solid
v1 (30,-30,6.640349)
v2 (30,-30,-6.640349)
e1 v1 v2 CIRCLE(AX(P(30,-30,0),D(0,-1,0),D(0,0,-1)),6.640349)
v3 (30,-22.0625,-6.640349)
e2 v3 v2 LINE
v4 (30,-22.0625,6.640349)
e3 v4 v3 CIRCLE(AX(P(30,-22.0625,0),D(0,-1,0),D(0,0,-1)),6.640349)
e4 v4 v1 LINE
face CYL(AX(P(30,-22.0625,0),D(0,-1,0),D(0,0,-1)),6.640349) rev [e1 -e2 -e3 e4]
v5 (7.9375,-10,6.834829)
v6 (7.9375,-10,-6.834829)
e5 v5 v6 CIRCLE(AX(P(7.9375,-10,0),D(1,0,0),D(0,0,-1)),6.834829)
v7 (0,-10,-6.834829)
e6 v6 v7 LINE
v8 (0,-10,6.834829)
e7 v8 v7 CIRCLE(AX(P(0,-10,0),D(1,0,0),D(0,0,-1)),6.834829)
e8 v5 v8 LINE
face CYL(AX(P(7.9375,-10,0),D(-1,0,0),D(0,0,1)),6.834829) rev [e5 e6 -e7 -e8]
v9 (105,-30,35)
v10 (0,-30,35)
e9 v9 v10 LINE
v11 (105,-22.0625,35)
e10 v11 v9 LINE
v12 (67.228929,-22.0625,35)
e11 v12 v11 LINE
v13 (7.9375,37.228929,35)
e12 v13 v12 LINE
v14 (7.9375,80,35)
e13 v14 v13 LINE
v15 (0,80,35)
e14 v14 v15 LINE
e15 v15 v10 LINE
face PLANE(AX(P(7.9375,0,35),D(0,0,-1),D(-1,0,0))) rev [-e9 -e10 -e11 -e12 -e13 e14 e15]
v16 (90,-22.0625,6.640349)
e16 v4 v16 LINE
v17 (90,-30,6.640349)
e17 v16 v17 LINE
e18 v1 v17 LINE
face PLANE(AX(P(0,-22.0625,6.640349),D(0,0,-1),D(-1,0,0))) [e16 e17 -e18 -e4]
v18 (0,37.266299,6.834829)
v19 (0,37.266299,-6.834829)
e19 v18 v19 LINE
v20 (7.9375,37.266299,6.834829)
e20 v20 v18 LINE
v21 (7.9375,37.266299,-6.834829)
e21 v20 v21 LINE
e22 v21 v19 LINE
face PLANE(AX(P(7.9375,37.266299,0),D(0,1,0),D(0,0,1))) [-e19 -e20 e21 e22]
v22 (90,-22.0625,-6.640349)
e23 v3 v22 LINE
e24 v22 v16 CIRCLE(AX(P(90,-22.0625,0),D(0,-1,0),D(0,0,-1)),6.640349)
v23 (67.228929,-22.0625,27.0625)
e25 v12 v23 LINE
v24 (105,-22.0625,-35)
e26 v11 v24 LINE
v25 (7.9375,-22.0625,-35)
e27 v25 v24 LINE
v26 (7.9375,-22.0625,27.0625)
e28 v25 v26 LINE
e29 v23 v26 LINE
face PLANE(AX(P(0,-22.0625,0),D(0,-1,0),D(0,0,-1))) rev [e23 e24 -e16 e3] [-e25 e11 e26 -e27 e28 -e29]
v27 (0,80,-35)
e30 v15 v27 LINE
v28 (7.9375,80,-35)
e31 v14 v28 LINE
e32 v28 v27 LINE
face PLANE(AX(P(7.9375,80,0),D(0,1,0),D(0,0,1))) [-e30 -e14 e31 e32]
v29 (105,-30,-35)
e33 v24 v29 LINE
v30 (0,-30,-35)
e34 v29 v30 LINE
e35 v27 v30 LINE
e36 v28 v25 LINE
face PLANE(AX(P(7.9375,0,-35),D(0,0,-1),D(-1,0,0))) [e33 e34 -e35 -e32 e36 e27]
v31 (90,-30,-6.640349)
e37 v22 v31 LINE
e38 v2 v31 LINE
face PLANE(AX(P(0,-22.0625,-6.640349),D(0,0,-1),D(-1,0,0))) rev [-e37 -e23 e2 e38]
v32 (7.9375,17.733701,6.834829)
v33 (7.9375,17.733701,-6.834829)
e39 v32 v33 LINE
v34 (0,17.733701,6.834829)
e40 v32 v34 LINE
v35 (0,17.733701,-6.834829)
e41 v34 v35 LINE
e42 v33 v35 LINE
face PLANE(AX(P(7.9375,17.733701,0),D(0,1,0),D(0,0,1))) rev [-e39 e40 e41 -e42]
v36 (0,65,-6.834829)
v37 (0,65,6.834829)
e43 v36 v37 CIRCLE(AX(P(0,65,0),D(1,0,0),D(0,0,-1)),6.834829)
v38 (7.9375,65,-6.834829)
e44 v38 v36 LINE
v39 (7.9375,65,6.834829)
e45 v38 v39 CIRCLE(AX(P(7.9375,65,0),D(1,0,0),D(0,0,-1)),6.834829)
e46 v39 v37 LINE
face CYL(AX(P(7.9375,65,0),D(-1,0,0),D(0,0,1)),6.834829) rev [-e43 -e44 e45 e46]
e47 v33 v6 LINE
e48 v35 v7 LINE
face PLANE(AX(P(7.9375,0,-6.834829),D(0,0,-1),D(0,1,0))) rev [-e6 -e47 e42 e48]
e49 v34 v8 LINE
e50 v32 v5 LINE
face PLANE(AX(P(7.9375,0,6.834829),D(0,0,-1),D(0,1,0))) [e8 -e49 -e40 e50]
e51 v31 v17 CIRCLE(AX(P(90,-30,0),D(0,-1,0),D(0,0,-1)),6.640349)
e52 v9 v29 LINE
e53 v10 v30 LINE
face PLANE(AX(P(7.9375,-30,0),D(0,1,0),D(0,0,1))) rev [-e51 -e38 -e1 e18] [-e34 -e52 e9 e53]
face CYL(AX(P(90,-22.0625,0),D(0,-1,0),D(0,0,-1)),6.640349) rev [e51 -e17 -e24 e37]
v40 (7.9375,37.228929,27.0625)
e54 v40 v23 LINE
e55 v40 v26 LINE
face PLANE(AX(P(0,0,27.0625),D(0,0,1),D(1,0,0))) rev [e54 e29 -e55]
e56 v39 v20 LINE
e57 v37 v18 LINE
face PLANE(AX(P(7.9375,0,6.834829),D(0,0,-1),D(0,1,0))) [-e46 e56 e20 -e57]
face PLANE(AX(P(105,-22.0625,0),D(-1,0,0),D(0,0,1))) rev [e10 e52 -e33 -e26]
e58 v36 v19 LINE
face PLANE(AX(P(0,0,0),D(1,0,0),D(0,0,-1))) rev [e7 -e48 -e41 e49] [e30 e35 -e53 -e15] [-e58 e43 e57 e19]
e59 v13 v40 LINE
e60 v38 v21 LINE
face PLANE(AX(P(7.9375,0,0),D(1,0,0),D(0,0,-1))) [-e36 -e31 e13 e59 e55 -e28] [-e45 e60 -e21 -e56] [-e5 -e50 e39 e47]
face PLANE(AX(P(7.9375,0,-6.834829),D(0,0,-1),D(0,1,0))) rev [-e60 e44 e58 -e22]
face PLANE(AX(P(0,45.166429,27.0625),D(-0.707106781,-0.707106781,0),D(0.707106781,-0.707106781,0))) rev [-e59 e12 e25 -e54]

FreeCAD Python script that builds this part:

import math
import FreeCAD as App
import Part
import Sketcher
Q = App.Units.Quantity


def add_polygon(sketch, points):
    """Adds a closed chain of lines whose ends are joined by coincident constraints."""
    first, n = sketch.GeometryCount, len(points)
    for a, b in zip(points, points[1:] + points[:1]):
        sketch.addGeometry(Part.LineSegment(App.Vector(*a, 0), App.Vector(*b, 0)), False)
    for i in range(n):
        sketch.addConstraint(Sketcher.Constraint("Coincident", first + i, 2, first + (i + 1) % n, 1))

doc = App.newDocument("Part")
body = doc.addObject("PartDesign::Body", "Body")

# Sketch on YZ plane
sketch1 = body.newObject("Sketcher::SketchObject", "Sketch")
sketch1.AttachmentSupport = (doc.getObject("YZ_Plane"), [""])
sketch1.MapMode = "FlatFace"
add_polygon(sketch1, [(80, 35), (-30, 35), (-30, -35), (80, -35)])  # lines 0-3
sketch1.addGeometry(Part.ArcOfCircle(Part.Circle(App.Vector(65, 0, 0), App.Vector(0, 0, 1), 7), math.radians(-90), math.radians(90)), False)  # 4
sketch1.addGeometry(Part.LineSegment(App.Vector(65, -7, 0), App.Vector(37, -7, 0)), False)  # 5
sketch1.addGeometry(Part.LineSegment(App.Vector(37, -7, 0), App.Vector(37, 7, 0)), False)  # 6
sketch1.addGeometry(Part.LineSegment(App.Vector(37, 7, 0), App.Vector(65, 7, 0)), False)  # 7
sketch1.addGeometry(Part.LineSegment(App.Vector(-10, 7, 0), App.Vector(18, 7, 0)), False)  # 8
sketch1.addGeometry(Part.LineSegment(App.Vector(18, 7, 0), App.Vector(18, -7, 0)), False)  # 9
sketch1.addGeometry(Part.LineSegment(App.Vector(18, -7, 0), App.Vector(-10, -7, 0)), False)  # 10
sketch1.addGeometry(Part.ArcOfCircle(Part.Circle(App.Vector(-10, 0, 0), App.Vector(0, 0, 1), 7), math.radians(90), math.radians(270)), False)  # 11
sketch1.addConstraint(Sketcher.Constraint("Tangent", 4, 1, 5, 1))
sketch1.addConstraint(Sketcher.Constraint("Coincident", 5, 2, 6, 1))
sketch1.addConstraint(Sketcher.Constraint("Coincident", 6, 2, 7, 1))
sketch1.addConstraint(Sketcher.Constraint("Tangent", 7, 2, 4, 2))
sketch1.addConstraint(Sketcher.Constraint("Coincident", 8, 2, 9, 1))
sketch1.addConstraint(Sketcher.Constraint("Coincident", 9, 2, 10, 1))
sketch1.addConstraint(Sketcher.Constraint("Tangent", 10, 2, 11, 2))
sketch1.addConstraint(Sketcher.Constraint("Tangent", 11, 1, 8, 1))
sketch1.addConstraint(Sketcher.Constraint("Horizontal", 0))
sketch1.addConstraint(Sketcher.Constraint("Vertical", 1))
sketch1.addConstraint(Sketcher.Constraint("Horizontal", 2))
sketch1.addConstraint(Sketcher.Constraint("Vertical", 3))
sketch1.addConstraint(Sketcher.Constraint("Horizontal", 5))
sketch1.addConstraint(Sketcher.Constraint("Vertical", 6))
sketch1.addConstraint(Sketcher.Constraint("Horizontal", 7))
sketch1.addConstraint(Sketcher.Constraint("Horizontal", 8))
sketch1.addConstraint(Sketcher.Constraint("Vertical", 9))
sketch1.addConstraint(Sketcher.Constraint("Horizontal", 10))
sketch1.addConstraint(Sketcher.Constraint("Equal", 4, 11))
sketch1.addConstraint(Sketcher.Constraint("PointOnObject", 4, 3, -1))
sketch1.addConstraint(Sketcher.Constraint("PointOnObject", 11, 3, -1))
sketch1.addConstraint(Sketcher.Constraint("Equal", 7, 8))
sketch1.addConstraint(Sketcher.Constraint("DistanceX", 0, 2, 0, 1, Q("110 mm")))
sketch1.addConstraint(Sketcher.Constraint("DistanceY", 1, 2, 1, 1, Q("70 mm")))
sketch1.addConstraint(Sketcher.Constraint("DistanceX", -1, 1, 4, 3, Q("65 mm")))
sketch1.addConstraint(Sketcher.Constraint("DistanceX", 11, 3, -1, 1, Q("10 mm")))
sketch1.addConstraint(Sketcher.Constraint("DistanceX", 0, 2, -1, 1, Q("30 mm")))
sketch1.addConstraint(Sketcher.Constraint("DistanceY", -1, 1, 0, 2, Q("35 mm")))
sketch1.addConstraint(Sketcher.Constraint("Radius", 4, Q("6.834829 mm")))
sketch1.addConstraint(Sketcher.Constraint("DistanceX", 5, 2, 5, 1, Q("27.733701 mm")))
pad1 = body.newObject("PartDesign::Pad", "Pad")
pad1.Profile = sketch1
pad1.Length = 7.9375

# Sketch on XZ plane
sketch2 = body.newObject("Sketcher::SketchObject", "Sketch001")
sketch2.AttachmentSupport = (doc.getObject("XZ_Plane"), [""])
sketch2.MapMode = "FlatFace"
sketch2.AttachmentOffset = App.Placement(App.Vector(0, 0, 30), App.Rotation())
add_polygon(sketch2, [(8, 35), (8, -35), (105, -35), (105, 35)])  # lines 0-3
sketch2.addGeometry(Part.LineSegment(App.Vector(90, -7, 0), App.Vector(30, -7, 0)), False)  # 4
sketch2.addGeometry(Part.ArcOfCircle(Part.Circle(App.Vector(30, 0, 0), App.Vector(0, 0, 1), 7), math.radians(90), math.radians(270)), False)  # 5
sketch2.addGeometry(Part.LineSegment(App.Vector(30, 7, 0), App.Vector(90, 7, 0)), False)  # 6
sketch2.addGeometry(Part.ArcOfCircle(Part.Circle(App.Vector(90, 0, 0), App.Vector(0, 0, 1), 7), math.radians(-90), math.radians(90)), False)  # 7
sketch2.addConstraint(Sketcher.Constraint("Tangent", 4, 2, 5, 2))
sketch2.addConstraint(Sketcher.Constraint("Tangent", 5, 1, 6, 1))
sketch2.addConstraint(Sketcher.Constraint("Tangent", 6, 2, 7, 2))
sketch2.addConstraint(Sketcher.Constraint("Tangent", 7, 1, 4, 1))
sketch2.addConstraint(Sketcher.Constraint("Vertical", 0))
sketch2.addConstraint(Sketcher.Constraint("Horizontal", 1))
sketch2.addConstraint(Sketcher.Constraint("Vertical", 2))
sketch2.addConstraint(Sketcher.Constraint("Horizontal", 3))
sketch2.addConstraint(Sketcher.Constraint("Horizontal", 4))
sketch2.addConstraint(Sketcher.Constraint("Horizontal", 6))
sketch2.addConstraint(Sketcher.Constraint("PointOnObject", 5, 3, -1))
sketch2.addConstraint(Sketcher.Constraint("DistanceX", 4, 2, 4, 1, Q("60 mm")))
sketch2.addConstraint(Sketcher.Constraint("DistanceY", 0, 2, 0, 1, Q("70 mm")))
sketch2.addConstraint(Sketcher.Constraint("DistanceX", -1, 1, 5, 3, Q("30 mm")))
sketch2.addConstraint(Sketcher.Constraint("DistanceY", 0, 2, -1, 1, Q("35 mm")))
sketch2.addConstraint(Sketcher.Constraint("DistanceX", -1, 1, 1, 2, Q("105 mm")))
sketch2.addConstraint(Sketcher.Constraint("Radius", 5, Q("6.640349 mm")))
sketch2.addConstraint(Sketcher.Constraint("DistanceX", 1, 1, 1, 2, Q("97.0625 mm")))
pad2 = body.newObject("PartDesign::Pad", "Pad001")
pad2.Profile = sketch2
pad2.Length = 7.9375
pad2.Reversed = True

# Sketch on XY plane
sketch3 = body.newObject("Sketcher::SketchObject", "Sketch002")
sketch3.AttachmentSupport = (doc.getObject("XY_Plane"), [""])
sketch3.MapMode = "FlatFace"
sketch3.AttachmentOffset = App.Placement(App.Vector(0, 0, 35), App.Rotation())
add_polygon(sketch3, [(0, 45), (75, -30), (0, -30)])  # lines 0-2
sketch3.addConstraint(Sketcher.Constraint("Horizontal", 1))
sketch3.addConstraint(Sketcher.Constraint("Vertical", 2))
sketch3.addConstraint(Sketcher.Constraint("PointOnObject", 1, 2, -2))
sketch3.addConstraint(Sketcher.Constraint("Equal", 1, 2))
sketch3.addConstraint(Sketcher.Constraint("DistanceY", 0, 2, -1, 1, Q("30 mm")))
sketch3.addConstraint(Sketcher.Constraint("DistanceX", 1, 2, 1, 1, Q("75.166429 mm")))
pad3 = body.newObject("PartDesign::Pad", "Pad002")
pad3.Profile = sketch3
pad3.Length = 7.9375
pad3.Reversed = True

doc.recompute()
